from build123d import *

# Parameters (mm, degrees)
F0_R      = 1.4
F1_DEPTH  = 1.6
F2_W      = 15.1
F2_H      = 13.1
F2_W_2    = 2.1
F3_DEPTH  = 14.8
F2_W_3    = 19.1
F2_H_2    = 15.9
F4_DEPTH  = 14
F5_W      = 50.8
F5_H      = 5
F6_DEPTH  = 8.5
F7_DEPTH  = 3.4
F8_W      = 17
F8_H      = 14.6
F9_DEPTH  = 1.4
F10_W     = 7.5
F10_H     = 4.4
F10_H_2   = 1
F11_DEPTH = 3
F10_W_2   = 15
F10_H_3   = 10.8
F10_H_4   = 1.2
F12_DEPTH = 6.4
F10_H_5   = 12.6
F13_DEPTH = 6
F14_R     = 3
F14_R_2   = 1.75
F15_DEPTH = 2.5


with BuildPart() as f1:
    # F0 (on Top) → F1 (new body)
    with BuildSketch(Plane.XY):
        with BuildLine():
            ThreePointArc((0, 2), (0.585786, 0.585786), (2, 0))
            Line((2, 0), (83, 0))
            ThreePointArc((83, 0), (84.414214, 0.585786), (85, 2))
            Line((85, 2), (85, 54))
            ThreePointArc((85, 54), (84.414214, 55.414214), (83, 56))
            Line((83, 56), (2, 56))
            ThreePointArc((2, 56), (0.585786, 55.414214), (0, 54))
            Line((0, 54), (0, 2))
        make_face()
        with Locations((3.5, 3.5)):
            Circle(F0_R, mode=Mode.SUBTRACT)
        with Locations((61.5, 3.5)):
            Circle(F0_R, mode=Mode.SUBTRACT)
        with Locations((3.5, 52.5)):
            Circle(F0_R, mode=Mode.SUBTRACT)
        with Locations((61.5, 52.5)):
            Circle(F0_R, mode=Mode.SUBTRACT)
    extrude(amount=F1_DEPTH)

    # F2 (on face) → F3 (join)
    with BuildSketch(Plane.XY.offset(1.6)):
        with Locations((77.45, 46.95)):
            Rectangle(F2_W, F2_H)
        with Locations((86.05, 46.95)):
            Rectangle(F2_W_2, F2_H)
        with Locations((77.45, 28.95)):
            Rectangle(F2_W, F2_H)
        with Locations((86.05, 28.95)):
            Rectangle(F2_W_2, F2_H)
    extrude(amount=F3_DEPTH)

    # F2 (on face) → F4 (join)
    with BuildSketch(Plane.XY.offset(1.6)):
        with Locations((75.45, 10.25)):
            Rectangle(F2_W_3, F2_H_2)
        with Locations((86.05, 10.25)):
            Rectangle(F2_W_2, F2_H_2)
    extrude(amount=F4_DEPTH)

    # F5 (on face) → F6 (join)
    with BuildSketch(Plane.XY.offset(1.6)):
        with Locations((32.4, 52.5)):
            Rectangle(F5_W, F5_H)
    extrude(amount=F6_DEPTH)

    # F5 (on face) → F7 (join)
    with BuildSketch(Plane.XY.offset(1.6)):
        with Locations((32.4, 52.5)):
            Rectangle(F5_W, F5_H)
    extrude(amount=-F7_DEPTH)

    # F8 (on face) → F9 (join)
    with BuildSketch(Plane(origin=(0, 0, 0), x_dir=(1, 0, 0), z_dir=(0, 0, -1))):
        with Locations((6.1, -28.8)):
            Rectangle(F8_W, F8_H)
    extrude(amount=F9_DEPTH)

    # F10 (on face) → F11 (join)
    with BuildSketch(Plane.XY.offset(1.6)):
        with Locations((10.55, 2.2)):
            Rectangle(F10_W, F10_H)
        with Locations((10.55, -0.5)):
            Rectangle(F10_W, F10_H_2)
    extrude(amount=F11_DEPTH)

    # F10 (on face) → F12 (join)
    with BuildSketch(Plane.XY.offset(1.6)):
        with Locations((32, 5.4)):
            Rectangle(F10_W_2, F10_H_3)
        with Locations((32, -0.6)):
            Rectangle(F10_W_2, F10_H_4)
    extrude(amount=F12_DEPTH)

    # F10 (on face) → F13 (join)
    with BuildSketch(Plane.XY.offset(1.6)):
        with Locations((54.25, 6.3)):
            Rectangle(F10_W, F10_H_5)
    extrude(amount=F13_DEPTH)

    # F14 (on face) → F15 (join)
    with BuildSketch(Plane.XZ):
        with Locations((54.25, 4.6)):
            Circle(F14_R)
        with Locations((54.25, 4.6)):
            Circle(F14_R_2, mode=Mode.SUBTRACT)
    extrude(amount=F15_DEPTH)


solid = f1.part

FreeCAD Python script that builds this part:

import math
import FreeCAD as App
import Part
import Sketcher

V = App.Vector
Q = App.Units.Quantity

doc = App.newDocument("Part")
body = doc.addObject("PartDesign::Body", "Body")

# Sketch on XY plane
sketch1 = doc.addObject("Sketcher::SketchObject", "Sketch")
body.addObject(sketch1)
sketch1.AttachmentSupport = (doc.XY_Plane, [""])
sketch1.MapMode = "FlatFace"
sketch1.addGeometry([
    Part.ArcOfCircle(Part.Circle(V(2, 2, 0), V(0, 0, 1), 2), math.radians(180), math.radians(270)),  # 0
    Part.LineSegment(V(2, 0, 0), V(83, 0, 0)),  # 1
    Part.ArcOfCircle(Part.Circle(V(83, 2, 0), V(0, 0, 1), 2), math.radians(-90), math.radians(0)),  # 2
    Part.LineSegment(V(85, 2, 0), V(85, 54, 0)),  # 3
    Part.ArcOfCircle(Part.Circle(V(83, 54, 0), V(0, 0, 1), 2), math.radians(0), math.radians(90)),  # 4
    Part.LineSegment(V(83, 56, 0), V(2, 56, 0)),  # 5
    Part.ArcOfCircle(Part.Circle(V(2, 54, 0), V(0, 0, 1), 2), math.radians(90), math.radians(180)),  # 6
    Part.LineSegment(V(0, 54, 0), V(0, 2, 0)),  # 7
    Part.Circle(V(3.5, 3.5, 0), V(0, 0, 1), 1.4),  # 8
    Part.Circle(V(61.5, 3.5, 0), V(0, 0, 1), 1.4),  # 9
    Part.Circle(V(3.5, 52.5, 0), V(0, 0, 1), 1.4),  # 10
    Part.Circle(V(61.5, 52.5, 0), V(0, 0, 1), 1.4),  # 11
], False)
sketch1.addConstraint([
    Sketcher.Constraint("Tangent", 0, 2, 1, 1),
    Sketcher.Constraint("Tangent", 1, 2, 2, 1),
    Sketcher.Constraint("Tangent", 2, 2, 3, 1),
    Sketcher.Constraint("Tangent", 3, 2, 4, 1),
    Sketcher.Constraint("Tangent", 4, 2, 5, 1),
    Sketcher.Constraint("Tangent", 5, 2, 6, 1),
    Sketcher.Constraint("Tangent", 6, 2, 7, 1),
    Sketcher.Constraint("Tangent", 7, 2, 0, 1),
    Sketcher.Constraint("Horizontal", 1),
    Sketcher.Constraint("Vertical", 3),
    Sketcher.Constraint("Horizontal", 5),
    Sketcher.Constraint("Vertical", 7),
    Sketcher.Constraint("Equal", 0, 2),
    Sketcher.Constraint("Equal", 2, 4),
    Sketcher.Constraint("Equal", 4, 6),
    Sketcher.Constraint("Equal", 8, 9),
    Sketcher.Constraint("Equal", 9, 10),
    Sketcher.Constraint("Equal", 10, 11),
    Sketcher.Constraint("PointOnObject", 0, 2, -1),
    Sketcher.Constraint("PointOnObject", 6, 2, -2),
    Sketcher.Constraint("Horizontal", 8, 3, 9, 3),
    Sketcher.Constraint("Horizontal", 10, 3, 11, 3),
    Sketcher.Constraint("Vertical", 8, 3, 10, 3),
    Sketcher.Constraint("Vertical", 9, 3, 11, 3),
    Sketcher.Constraint("Radius", 0, Q("1.999999 mm")),
    Sketcher.Constraint("Diameter", 8, Q("2.8 mm")),
    Sketcher.Constraint("DistanceX", 1, 1, 1, 2, Q("81 mm")),
    Sketcher.Constraint("DistanceY", 3, 1, 3, 2, Q("52 mm")),
    Sketcher.Constraint("DistanceX", 8, 3, 9, 3, Q("58 mm")),
    Sketcher.Constraint("DistanceY", 8, 3, 10, 3, Q("49 mm")),
    Sketcher.Constraint("DistanceX", -1, 1, 8, 3, Q("3.5 mm")),
    Sketcher.Constraint("DistanceY", -1, 1, 8, 3, Q("3.5 mm")),
])
pad1 = doc.addObject("PartDesign::Pad", "Pad")
body.addObject(pad1)
pad1.Profile = sketch1
pad1.Length = 1.6

# Sketch on XY plane
sketch2 = doc.addObject("Sketcher::SketchObject", "Sketch001")
body.addObject(sketch2)
sketch2.AttachmentSupport = (doc.XY_Plane, [""])
sketch2.MapMode = "FlatFace"
sketch2.AttachmentOffset = App.Placement(V(0, 0, 1.6), App.Rotation())
sketch2.addGeometry([
    Part.LineSegment(V(70, 54, 0), V(70, 40, 0)),  # 0
    Part.LineSegment(V(70, 40, 0), V(87, 40, 0)),  # 1
    Part.LineSegment(V(87, 40, 0), V(87, 54, 0)),  # 2
    Part.LineSegment(V(87, 54, 0), V(70, 54, 0)),  # 3
    Part.LineSegment(V(70, 36, 0), V(70, 22, 0)),  # 4
    Part.LineSegment(V(70, 22, 0), V(87, 22, 0)),  # 5
    Part.LineSegment(V(87, 22, 0), V(87, 36, 0)),  # 6
    Part.LineSegment(V(87, 36, 0), V(70, 36, 0)),  # 7
], False)
sketch2.addConstraint([
    Sketcher.Constraint("Coincident", 0, 2, 1, 1),
    Sketcher.Constraint("Coincident", 1, 2, 2, 1),
    Sketcher.Constraint("Coincident", 2, 2, 3, 1),
    Sketcher.Constraint("Coincident", 3, 2, 0, 1),
    Sketcher.Constraint("Coincident", 4, 2, 5, 1),
    Sketcher.Constraint("Coincident", 5, 2, 6, 1),
    Sketcher.Constraint("Coincident", 6, 2, 7, 1),
    Sketcher.Constraint("Coincident", 7, 2, 4, 1),
    Sketcher.Constraint("Vertical", 0),
    Sketcher.Constraint("Horizontal", 1),
    Sketcher.Constraint("Vertical", 2),
    Sketcher.Constraint("Horizontal", 3),
    Sketcher.Constraint("Vertical", 4),
    Sketcher.Constraint("Horizontal", 5),
    Sketcher.Constraint("Vertical", 6),
    Sketcher.Constraint("Horizontal", 7),
    Sketcher.Constraint("Vertical", 3, 2, 4, 2),
    Sketcher.Constraint("Vertical", 2, 2, 5, 2),
    Sketcher.Constraint("Equal", 2, 4),
    Sketcher.Constraint("DistanceX", 1, 1, 1, 2, Q("17.2 mm")),
    Sketcher.Constraint("DistanceY", 0, 2, 0, 1, Q("13.1 mm")),
    Sketcher.Constraint("DistanceY", 4, 2, 0, 2, Q("18 mm")),
    Sketcher.Constraint("DistanceX", -1, 1, 0, 2, Q("69.9 mm")),
    Sketcher.Constraint("DistanceY", -1, 1, 0, 2, Q("40.4 mm")),
])
pad2 = doc.addObject("PartDesign::Pad", "Pad001")
body.addObject(pad2)
pad2.Profile = sketch2
pad2.Length = 14.8

# Sketch on XY plane
sketch3 = doc.addObject("Sketcher::SketchObject", "Sketch002")
body.addObject(sketch3)
sketch3.AttachmentSupport = (doc.XY_Plane, [""])
sketch3.MapMode = "FlatFace"
sketch3.AttachmentOffset = App.Placement(V(0, 0, 1.6), App.Rotation())
sketch3.addGeometry([
    Part.LineSegment(V(66, 18, 0), V(66, 2, 0)),
    Part.LineSegment(V(66, 2, 0), V(87, 2, 0)),
    Part.LineSegment(V(87, 2, 0), V(87, 18, 0)),
    Part.LineSegment(V(87, 18, 0), V(66, 18, 0)),
], False)
sketch3.addConstraint([
    Sketcher.Constraint("Coincident", 0, 2, 1, 1),
    Sketcher.Constraint("Coincident", 1, 2, 2, 1),
    Sketcher.Constraint("Coincident", 2, 2, 3, 1),
    Sketcher.Constraint("Coincident", 3, 2, 0, 1),
    Sketcher.Constraint("Vertical", 0),
    Sketcher.Constraint("Horizontal", 1),
    Sketcher.Constraint("Vertical", 2),
    Sketcher.Constraint("Horizontal", 3),
    Sketcher.Constraint("DistanceX", 1, 1, 1, 2, Q("21.2 mm")),
    Sketcher.Constraint("DistanceY", 0, 2, 0, 1, Q("15.9 mm")),
    Sketcher.Constraint("DistanceX", -1, 1, 0, 2, Q("65.9 mm")),
    Sketcher.Constraint("DistanceY", -1, 1, 0, 2, Q("2.3 mm")),
])
pad3 = doc.addObject("PartDesign::Pad", "Pad002")
body.addObject(pad3)
pad3.Profile = sketch3
pad3.Length = 14

# Sketch on XY plane
sketch4 = doc.addObject("Sketcher::SketchObject", "Sketch003")
body.addObject(sketch4)
sketch4.AttachmentSupport = (doc.XY_Plane, [""])
sketch4.MapMode = "FlatFace"
sketch4.AttachmentOffset = App.Placement(V(0, 0, 1.6), App.Rotation())
sketch4.addGeometry([
    Part.LineSegment(V(7, 55, 0), V(7, 50, 0)),
    Part.LineSegment(V(7, 50, 0), V(58, 50, 0)),
    Part.LineSegment(V(58, 50, 0), V(58, 55, 0)),
    Part.LineSegment(V(58, 55, 0), V(7, 55, 0)),
], False)
sketch4.addConstraint([
    Sketcher.Constraint("Coincident", 0, 2, 1, 1),
    Sketcher.Constraint("Coincident", 1, 2, 2, 1),
    Sketcher.Constraint("Coincident", 2, 2, 3, 1),
    Sketcher.Constraint("Coincident", 3, 2, 0, 1),
    Sketcher.Constraint("Vertical", 0),
    Sketcher.Constraint("Horizontal", 1),
    Sketcher.Constraint("Vertical", 2),
    Sketcher.Constraint("Horizontal", 3),
    Sketcher.Constraint("DistanceY", 0, 2, 0, 1, Q("5 mm")),
    Sketcher.Constraint("DistanceX", 1, 1, 1, 2, Q("50.8 mm")),
    Sketcher.Constraint("DistanceX", -1, 1, 0, 2, Q("7 mm")),
    Sketcher.Constraint("DistanceY", -1, 1, 0, 2, Q("50 mm")),
])
pad4 = doc.addObject("PartDesign::Pad", "Pad003")
body.addObject(pad4)
pad4.Profile = sketch4
pad4.Length = 8.5

# Sketch on XY plane
sketch5 = doc.addObject("Sketcher::SketchObject", "Sketch004")
body.addObject(sketch5)
sketch5.AttachmentSupport = (doc.XY_Plane, [""])
sketch5.MapMode = "FlatFace"
sketch5.AttachmentOffset = App.Placement(V(0, 0, 1.6), App.Rotation())
sketch5.addGeometry([
    Part.LineSegment(V(7, 55, 0), V(7, 50, 0)),
    Part.LineSegment(V(7, 50, 0), V(58, 50, 0)),
    Part.LineSegment(V(58, 50, 0), V(58, 55, 0)),
    Part.LineSegment(V(58, 55, 0), V(7, 55, 0)),
], False)
sketch5.addConstraint([
    Sketcher.Constraint("Coincident", 0, 2, 1, 1),
    Sketcher.Constraint("Coincident", 1, 2, 2, 1),
    Sketcher.Constraint("Coincident", 2, 2, 3, 1),
    Sketcher.Constraint("Coincident", 3, 2, 0, 1),
    Sketcher.Constraint("Vertical", 0),
    Sketcher.Constraint("Horizontal", 1),
    Sketcher.Constraint("Vertical", 2),
    Sketcher.Constraint("Horizontal", 3),
    Sketcher.Constraint("DistanceY", 0, 2, 0, 1, Q("5 mm")),
    Sketcher.Constraint("DistanceX", 1, 1, 1, 2, Q("50.8 mm")),
    Sketcher.Constraint("DistanceX", -1, 1, 0, 2, Q("7 mm")),
    Sketcher.Constraint("DistanceY", -1, 1, 0, 2, Q("50 mm")),
])
pad5 = doc.addObject("PartDesign::Pad", "Pad004")
body.addObject(pad5)
pad5.Profile = sketch5
pad5.Length = 3.4
pad5.Reversed = True

# Sketch on XY plane
sketch6 = doc.addObject("Sketcher::SketchObject", "Sketch005")
body.addObject(sketch6)
sketch6.AttachmentSupport = (doc.XY_Plane, [""])
sketch6.MapMode = "FlatFace"
sketch6.addGeometry([
    Part.LineSegment(V(-2, 22, 0), V(-2, 36, 0)),
    Part.LineSegment(V(-2, 36, 0), V(15, 36, 0)),
    Part.LineSegment(V(15, 36, 0), V(15, 22, 0)),
    Part.LineSegment(V(15, 22, 0), V(-2, 22, 0)),
], False)
sketch6.addConstraint([
    Sketcher.Constraint("Coincident", 0, 2, 1, 1),
    Sketcher.Constraint("Coincident", 1, 2, 2, 1),
    Sketcher.Constraint("Coincident", 2, 2, 3, 1),
    Sketcher.Constraint("Coincident", 3, 2, 0, 1),
    Sketcher.Constraint("Vertical", 0),
    Sketcher.Constraint("Horizontal", 1),
    Sketcher.Constraint("Vertical", 2),
    Sketcher.Constraint("Horizontal", 3),
    Sketcher.Constraint("DistanceX", 1, 1, 1, 2, Q("17 mm")),
    Sketcher.Constraint("DistanceY", 0, 1, 0, 2, Q("14.6 mm")),
    Sketcher.Constraint("DistanceX", 0, 2, -1, 1, Q("2.4 mm")),
    Sketcher.Constraint("DistanceY", -1, 1, 0, 2, Q("36.1 mm")),
])
pad6 = doc.addObject("PartDesign::Pad", "Pad005")
body.addObject(pad6)
pad6.Profile = sketch6
pad6.Length = 1.4
pad6.Reversed = True

# Sketch on XY plane
sketch7 = doc.addObject("Sketcher::SketchObject", "Sketch006")
body.addObject(sketch7)
sketch7.AttachmentSupport = (doc.XY_Plane, [""])
sketch7.MapMode = "FlatFace"
sketch7.AttachmentOffset = App.Placement(V(0, 0, 1.6), App.Rotation())
sketch7.addGeometry([
    Part.LineSegment(V(7, 4, 0), V(7, -1, 0)),
    Part.LineSegment(V(7, -1, 0), V(14, -1, 0)),
    Part.LineSegment(V(14, -1, 0), V(14, 4, 0)),
    Part.LineSegment(V(14, 4, 0), V(7, 4, 0)),
], False)
sketch7.addConstraint([
    Sketcher.Constraint("Coincident", 0, 2, 1, 1),
    Sketcher.Constraint("Coincident", 1, 2, 2, 1),
    Sketcher.Constraint("Coincident", 2, 2, 3, 1),
    Sketcher.Constraint("Coincident", 3, 2, 0, 1),
    Sketcher.Constraint("Vertical", 0),
    Sketcher.Constraint("Horizontal", 1),
    Sketcher.Constraint("Vertical", 2),
    Sketcher.Constraint("Horizontal", 3),
    Sketcher.Constraint("DistanceX", 1, 1, 1, 2, Q("7.5 mm")),
    Sketcher.Constraint("DistanceY", 0, 2, 0, 1, Q("5.4 mm")),
    Sketcher.Constraint("DistanceY", 0, 2, -1, 1, Q("1 mm")),
    Sketcher.Constraint("DistanceX", -1, 1, 0, 2, Q("6.8 mm")),
])
pad7 = doc.addObject("PartDesign::Pad", "Pad006")
body.addObject(pad7)
pad7.Profile = sketch7
pad7.Length = 3

# Sketch on XY plane
sketch8 = doc.addObject("Sketcher::SketchObject", "Sketch007")
body.addObject(sketch8)
sketch8.AttachmentSupport = (doc.XY_Plane, [""])
sketch8.MapMode = "FlatFace"
sketch8.AttachmentOffset = App.Placement(V(0, 0, 1.6), App.Rotation())
sketch8.addGeometry([
    Part.LineSegment(V(24, 11, 0), V(24, -1, 0)),
    Part.LineSegment(V(24, -1, 0), V(40, -1, 0)),
    Part.LineSegment(V(40, -1, 0), V(40, 11, 0)),
    Part.LineSegment(V(40, 11, 0), V(24, 11, 0)),
], False)
sketch8.addConstraint([
    Sketcher.Constraint("Coincident", 0, 2, 1, 1),
    Sketcher.Constraint("Coincident", 1, 2, 2, 1),
    Sketcher.Constraint("Coincident", 2, 2, 3, 1),
    Sketcher.Constraint("Coincident", 3, 2, 0, 1),
    Sketcher.Constraint("Vertical", 0),
    Sketcher.Constraint("Horizontal", 1),
    Sketcher.Constraint("Vertical", 2),
    Sketcher.Constraint("Horizontal", 3),
    Sketcher.Constraint("DistanceX", 1, 1, 1, 2, Q("15 mm")),
    Sketcher.Constraint("DistanceY", 0, 2, 0, 1, Q("12 mm")),
    Sketcher.Constraint("DistanceX", -1, 1, 0, 2, Q("24.5 mm")),
    Sketcher.Constraint("DistanceY", 0, 2, -1, 1, Q("1.2 mm")),
])
pad8 = doc.addObject("PartDesign::Pad", "Pad007")
body.addObject(pad8)
pad8.Profile = sketch8
pad8.Length = 6.4

# Sketch on XY plane
sketch9 = doc.addObject("Sketcher::SketchObject", "Sketch008")
body.addObject(sketch9)
sketch9.AttachmentSupport = (doc.XY_Plane, [""])
sketch9.MapMode = "FlatFace"
sketch9.AttachmentOffset = App.Placement(V(0, 0, 1.6), App.Rotation())
sketch9.addGeometry([
    Part.LineSegment(V(50, 13, 0), V(50, 0, 0)),
    Part.LineSegment(V(50, 0, 0), V(58, 0, 0)),
    Part.LineSegment(V(58, 0, 0), V(58, 13, 0)),
    Part.LineSegment(V(58, 13, 0), V(50, 13, 0)),
], False)
sketch9.addConstraint([
    Sketcher.Constraint("Coincident", 0, 2, 1, 1),
    Sketcher.Constraint("Coincident", 1, 2, 2, 1),
    Sketcher.Constraint("Coincident", 2, 2, 3, 1),
    Sketcher.Constraint("Coincident", 3, 2, 0, 1),
    Sketcher.Constraint("Vertical", 0),
    Sketcher.Constraint("Horizontal", 1),
    Sketcher.Constraint("Vertical", 2),
    Sketcher.Constraint("Horizontal", 3),
    Sketcher.Constraint("PointOnObject", 0, 2, -1),
    Sketcher.Constraint("DistanceX", 1, 1, 1, 2, Q("7.5 mm")),
    Sketcher.Constraint("DistanceY", 0, 2, 0, 1, Q("12.6 mm")),
    Sketcher.Constraint("DistanceX", -1, 1, 1, 2, Q("58 mm")),
])
pad9 = doc.addObject("PartDesign::Pad", "Pad008")
body.addObject(pad9)
pad9.Profile = sketch9
pad9.Length = 6

# Sketch on XZ plane
sketch10 = doc.addObject("Sketcher::SketchObject", "Sketch009")
body.addObject(sketch10)
sketch10.AttachmentSupport = (doc.XZ_Plane, [""])
sketch10.MapMode = "FlatFace"
sketch10.addGeometry([
    Part.Circle(V(54.2, 4.6, 0), V(0, 0, 1), 3),
    Part.Circle(V(54.2, 4.6, 0), V(0, 0, 1), 1.8),
], False)
sketch10.addConstraint([
    Sketcher.Constraint("Coincident", 1, 3, 0, 3),
    Sketcher.Constraint("Diameter", 0, Q("6 mm")),
    Sketcher.Constraint("Diameter", 1, Q("3.5 mm")),
    Sketcher.Constraint("DistanceY", -1, 1, 0, 3, Q("4.6 mm")),
    Sketcher.Constraint("DistanceX", -1, 1, 0, 3, Q("54.25 mm")),
])
pad10 = doc.addObject("PartDesign::Pad", "Pad009")
body.addObject(pad10)
pad10.Profile = sketch10
pad10.Length = 2.5

doc.recompute()
